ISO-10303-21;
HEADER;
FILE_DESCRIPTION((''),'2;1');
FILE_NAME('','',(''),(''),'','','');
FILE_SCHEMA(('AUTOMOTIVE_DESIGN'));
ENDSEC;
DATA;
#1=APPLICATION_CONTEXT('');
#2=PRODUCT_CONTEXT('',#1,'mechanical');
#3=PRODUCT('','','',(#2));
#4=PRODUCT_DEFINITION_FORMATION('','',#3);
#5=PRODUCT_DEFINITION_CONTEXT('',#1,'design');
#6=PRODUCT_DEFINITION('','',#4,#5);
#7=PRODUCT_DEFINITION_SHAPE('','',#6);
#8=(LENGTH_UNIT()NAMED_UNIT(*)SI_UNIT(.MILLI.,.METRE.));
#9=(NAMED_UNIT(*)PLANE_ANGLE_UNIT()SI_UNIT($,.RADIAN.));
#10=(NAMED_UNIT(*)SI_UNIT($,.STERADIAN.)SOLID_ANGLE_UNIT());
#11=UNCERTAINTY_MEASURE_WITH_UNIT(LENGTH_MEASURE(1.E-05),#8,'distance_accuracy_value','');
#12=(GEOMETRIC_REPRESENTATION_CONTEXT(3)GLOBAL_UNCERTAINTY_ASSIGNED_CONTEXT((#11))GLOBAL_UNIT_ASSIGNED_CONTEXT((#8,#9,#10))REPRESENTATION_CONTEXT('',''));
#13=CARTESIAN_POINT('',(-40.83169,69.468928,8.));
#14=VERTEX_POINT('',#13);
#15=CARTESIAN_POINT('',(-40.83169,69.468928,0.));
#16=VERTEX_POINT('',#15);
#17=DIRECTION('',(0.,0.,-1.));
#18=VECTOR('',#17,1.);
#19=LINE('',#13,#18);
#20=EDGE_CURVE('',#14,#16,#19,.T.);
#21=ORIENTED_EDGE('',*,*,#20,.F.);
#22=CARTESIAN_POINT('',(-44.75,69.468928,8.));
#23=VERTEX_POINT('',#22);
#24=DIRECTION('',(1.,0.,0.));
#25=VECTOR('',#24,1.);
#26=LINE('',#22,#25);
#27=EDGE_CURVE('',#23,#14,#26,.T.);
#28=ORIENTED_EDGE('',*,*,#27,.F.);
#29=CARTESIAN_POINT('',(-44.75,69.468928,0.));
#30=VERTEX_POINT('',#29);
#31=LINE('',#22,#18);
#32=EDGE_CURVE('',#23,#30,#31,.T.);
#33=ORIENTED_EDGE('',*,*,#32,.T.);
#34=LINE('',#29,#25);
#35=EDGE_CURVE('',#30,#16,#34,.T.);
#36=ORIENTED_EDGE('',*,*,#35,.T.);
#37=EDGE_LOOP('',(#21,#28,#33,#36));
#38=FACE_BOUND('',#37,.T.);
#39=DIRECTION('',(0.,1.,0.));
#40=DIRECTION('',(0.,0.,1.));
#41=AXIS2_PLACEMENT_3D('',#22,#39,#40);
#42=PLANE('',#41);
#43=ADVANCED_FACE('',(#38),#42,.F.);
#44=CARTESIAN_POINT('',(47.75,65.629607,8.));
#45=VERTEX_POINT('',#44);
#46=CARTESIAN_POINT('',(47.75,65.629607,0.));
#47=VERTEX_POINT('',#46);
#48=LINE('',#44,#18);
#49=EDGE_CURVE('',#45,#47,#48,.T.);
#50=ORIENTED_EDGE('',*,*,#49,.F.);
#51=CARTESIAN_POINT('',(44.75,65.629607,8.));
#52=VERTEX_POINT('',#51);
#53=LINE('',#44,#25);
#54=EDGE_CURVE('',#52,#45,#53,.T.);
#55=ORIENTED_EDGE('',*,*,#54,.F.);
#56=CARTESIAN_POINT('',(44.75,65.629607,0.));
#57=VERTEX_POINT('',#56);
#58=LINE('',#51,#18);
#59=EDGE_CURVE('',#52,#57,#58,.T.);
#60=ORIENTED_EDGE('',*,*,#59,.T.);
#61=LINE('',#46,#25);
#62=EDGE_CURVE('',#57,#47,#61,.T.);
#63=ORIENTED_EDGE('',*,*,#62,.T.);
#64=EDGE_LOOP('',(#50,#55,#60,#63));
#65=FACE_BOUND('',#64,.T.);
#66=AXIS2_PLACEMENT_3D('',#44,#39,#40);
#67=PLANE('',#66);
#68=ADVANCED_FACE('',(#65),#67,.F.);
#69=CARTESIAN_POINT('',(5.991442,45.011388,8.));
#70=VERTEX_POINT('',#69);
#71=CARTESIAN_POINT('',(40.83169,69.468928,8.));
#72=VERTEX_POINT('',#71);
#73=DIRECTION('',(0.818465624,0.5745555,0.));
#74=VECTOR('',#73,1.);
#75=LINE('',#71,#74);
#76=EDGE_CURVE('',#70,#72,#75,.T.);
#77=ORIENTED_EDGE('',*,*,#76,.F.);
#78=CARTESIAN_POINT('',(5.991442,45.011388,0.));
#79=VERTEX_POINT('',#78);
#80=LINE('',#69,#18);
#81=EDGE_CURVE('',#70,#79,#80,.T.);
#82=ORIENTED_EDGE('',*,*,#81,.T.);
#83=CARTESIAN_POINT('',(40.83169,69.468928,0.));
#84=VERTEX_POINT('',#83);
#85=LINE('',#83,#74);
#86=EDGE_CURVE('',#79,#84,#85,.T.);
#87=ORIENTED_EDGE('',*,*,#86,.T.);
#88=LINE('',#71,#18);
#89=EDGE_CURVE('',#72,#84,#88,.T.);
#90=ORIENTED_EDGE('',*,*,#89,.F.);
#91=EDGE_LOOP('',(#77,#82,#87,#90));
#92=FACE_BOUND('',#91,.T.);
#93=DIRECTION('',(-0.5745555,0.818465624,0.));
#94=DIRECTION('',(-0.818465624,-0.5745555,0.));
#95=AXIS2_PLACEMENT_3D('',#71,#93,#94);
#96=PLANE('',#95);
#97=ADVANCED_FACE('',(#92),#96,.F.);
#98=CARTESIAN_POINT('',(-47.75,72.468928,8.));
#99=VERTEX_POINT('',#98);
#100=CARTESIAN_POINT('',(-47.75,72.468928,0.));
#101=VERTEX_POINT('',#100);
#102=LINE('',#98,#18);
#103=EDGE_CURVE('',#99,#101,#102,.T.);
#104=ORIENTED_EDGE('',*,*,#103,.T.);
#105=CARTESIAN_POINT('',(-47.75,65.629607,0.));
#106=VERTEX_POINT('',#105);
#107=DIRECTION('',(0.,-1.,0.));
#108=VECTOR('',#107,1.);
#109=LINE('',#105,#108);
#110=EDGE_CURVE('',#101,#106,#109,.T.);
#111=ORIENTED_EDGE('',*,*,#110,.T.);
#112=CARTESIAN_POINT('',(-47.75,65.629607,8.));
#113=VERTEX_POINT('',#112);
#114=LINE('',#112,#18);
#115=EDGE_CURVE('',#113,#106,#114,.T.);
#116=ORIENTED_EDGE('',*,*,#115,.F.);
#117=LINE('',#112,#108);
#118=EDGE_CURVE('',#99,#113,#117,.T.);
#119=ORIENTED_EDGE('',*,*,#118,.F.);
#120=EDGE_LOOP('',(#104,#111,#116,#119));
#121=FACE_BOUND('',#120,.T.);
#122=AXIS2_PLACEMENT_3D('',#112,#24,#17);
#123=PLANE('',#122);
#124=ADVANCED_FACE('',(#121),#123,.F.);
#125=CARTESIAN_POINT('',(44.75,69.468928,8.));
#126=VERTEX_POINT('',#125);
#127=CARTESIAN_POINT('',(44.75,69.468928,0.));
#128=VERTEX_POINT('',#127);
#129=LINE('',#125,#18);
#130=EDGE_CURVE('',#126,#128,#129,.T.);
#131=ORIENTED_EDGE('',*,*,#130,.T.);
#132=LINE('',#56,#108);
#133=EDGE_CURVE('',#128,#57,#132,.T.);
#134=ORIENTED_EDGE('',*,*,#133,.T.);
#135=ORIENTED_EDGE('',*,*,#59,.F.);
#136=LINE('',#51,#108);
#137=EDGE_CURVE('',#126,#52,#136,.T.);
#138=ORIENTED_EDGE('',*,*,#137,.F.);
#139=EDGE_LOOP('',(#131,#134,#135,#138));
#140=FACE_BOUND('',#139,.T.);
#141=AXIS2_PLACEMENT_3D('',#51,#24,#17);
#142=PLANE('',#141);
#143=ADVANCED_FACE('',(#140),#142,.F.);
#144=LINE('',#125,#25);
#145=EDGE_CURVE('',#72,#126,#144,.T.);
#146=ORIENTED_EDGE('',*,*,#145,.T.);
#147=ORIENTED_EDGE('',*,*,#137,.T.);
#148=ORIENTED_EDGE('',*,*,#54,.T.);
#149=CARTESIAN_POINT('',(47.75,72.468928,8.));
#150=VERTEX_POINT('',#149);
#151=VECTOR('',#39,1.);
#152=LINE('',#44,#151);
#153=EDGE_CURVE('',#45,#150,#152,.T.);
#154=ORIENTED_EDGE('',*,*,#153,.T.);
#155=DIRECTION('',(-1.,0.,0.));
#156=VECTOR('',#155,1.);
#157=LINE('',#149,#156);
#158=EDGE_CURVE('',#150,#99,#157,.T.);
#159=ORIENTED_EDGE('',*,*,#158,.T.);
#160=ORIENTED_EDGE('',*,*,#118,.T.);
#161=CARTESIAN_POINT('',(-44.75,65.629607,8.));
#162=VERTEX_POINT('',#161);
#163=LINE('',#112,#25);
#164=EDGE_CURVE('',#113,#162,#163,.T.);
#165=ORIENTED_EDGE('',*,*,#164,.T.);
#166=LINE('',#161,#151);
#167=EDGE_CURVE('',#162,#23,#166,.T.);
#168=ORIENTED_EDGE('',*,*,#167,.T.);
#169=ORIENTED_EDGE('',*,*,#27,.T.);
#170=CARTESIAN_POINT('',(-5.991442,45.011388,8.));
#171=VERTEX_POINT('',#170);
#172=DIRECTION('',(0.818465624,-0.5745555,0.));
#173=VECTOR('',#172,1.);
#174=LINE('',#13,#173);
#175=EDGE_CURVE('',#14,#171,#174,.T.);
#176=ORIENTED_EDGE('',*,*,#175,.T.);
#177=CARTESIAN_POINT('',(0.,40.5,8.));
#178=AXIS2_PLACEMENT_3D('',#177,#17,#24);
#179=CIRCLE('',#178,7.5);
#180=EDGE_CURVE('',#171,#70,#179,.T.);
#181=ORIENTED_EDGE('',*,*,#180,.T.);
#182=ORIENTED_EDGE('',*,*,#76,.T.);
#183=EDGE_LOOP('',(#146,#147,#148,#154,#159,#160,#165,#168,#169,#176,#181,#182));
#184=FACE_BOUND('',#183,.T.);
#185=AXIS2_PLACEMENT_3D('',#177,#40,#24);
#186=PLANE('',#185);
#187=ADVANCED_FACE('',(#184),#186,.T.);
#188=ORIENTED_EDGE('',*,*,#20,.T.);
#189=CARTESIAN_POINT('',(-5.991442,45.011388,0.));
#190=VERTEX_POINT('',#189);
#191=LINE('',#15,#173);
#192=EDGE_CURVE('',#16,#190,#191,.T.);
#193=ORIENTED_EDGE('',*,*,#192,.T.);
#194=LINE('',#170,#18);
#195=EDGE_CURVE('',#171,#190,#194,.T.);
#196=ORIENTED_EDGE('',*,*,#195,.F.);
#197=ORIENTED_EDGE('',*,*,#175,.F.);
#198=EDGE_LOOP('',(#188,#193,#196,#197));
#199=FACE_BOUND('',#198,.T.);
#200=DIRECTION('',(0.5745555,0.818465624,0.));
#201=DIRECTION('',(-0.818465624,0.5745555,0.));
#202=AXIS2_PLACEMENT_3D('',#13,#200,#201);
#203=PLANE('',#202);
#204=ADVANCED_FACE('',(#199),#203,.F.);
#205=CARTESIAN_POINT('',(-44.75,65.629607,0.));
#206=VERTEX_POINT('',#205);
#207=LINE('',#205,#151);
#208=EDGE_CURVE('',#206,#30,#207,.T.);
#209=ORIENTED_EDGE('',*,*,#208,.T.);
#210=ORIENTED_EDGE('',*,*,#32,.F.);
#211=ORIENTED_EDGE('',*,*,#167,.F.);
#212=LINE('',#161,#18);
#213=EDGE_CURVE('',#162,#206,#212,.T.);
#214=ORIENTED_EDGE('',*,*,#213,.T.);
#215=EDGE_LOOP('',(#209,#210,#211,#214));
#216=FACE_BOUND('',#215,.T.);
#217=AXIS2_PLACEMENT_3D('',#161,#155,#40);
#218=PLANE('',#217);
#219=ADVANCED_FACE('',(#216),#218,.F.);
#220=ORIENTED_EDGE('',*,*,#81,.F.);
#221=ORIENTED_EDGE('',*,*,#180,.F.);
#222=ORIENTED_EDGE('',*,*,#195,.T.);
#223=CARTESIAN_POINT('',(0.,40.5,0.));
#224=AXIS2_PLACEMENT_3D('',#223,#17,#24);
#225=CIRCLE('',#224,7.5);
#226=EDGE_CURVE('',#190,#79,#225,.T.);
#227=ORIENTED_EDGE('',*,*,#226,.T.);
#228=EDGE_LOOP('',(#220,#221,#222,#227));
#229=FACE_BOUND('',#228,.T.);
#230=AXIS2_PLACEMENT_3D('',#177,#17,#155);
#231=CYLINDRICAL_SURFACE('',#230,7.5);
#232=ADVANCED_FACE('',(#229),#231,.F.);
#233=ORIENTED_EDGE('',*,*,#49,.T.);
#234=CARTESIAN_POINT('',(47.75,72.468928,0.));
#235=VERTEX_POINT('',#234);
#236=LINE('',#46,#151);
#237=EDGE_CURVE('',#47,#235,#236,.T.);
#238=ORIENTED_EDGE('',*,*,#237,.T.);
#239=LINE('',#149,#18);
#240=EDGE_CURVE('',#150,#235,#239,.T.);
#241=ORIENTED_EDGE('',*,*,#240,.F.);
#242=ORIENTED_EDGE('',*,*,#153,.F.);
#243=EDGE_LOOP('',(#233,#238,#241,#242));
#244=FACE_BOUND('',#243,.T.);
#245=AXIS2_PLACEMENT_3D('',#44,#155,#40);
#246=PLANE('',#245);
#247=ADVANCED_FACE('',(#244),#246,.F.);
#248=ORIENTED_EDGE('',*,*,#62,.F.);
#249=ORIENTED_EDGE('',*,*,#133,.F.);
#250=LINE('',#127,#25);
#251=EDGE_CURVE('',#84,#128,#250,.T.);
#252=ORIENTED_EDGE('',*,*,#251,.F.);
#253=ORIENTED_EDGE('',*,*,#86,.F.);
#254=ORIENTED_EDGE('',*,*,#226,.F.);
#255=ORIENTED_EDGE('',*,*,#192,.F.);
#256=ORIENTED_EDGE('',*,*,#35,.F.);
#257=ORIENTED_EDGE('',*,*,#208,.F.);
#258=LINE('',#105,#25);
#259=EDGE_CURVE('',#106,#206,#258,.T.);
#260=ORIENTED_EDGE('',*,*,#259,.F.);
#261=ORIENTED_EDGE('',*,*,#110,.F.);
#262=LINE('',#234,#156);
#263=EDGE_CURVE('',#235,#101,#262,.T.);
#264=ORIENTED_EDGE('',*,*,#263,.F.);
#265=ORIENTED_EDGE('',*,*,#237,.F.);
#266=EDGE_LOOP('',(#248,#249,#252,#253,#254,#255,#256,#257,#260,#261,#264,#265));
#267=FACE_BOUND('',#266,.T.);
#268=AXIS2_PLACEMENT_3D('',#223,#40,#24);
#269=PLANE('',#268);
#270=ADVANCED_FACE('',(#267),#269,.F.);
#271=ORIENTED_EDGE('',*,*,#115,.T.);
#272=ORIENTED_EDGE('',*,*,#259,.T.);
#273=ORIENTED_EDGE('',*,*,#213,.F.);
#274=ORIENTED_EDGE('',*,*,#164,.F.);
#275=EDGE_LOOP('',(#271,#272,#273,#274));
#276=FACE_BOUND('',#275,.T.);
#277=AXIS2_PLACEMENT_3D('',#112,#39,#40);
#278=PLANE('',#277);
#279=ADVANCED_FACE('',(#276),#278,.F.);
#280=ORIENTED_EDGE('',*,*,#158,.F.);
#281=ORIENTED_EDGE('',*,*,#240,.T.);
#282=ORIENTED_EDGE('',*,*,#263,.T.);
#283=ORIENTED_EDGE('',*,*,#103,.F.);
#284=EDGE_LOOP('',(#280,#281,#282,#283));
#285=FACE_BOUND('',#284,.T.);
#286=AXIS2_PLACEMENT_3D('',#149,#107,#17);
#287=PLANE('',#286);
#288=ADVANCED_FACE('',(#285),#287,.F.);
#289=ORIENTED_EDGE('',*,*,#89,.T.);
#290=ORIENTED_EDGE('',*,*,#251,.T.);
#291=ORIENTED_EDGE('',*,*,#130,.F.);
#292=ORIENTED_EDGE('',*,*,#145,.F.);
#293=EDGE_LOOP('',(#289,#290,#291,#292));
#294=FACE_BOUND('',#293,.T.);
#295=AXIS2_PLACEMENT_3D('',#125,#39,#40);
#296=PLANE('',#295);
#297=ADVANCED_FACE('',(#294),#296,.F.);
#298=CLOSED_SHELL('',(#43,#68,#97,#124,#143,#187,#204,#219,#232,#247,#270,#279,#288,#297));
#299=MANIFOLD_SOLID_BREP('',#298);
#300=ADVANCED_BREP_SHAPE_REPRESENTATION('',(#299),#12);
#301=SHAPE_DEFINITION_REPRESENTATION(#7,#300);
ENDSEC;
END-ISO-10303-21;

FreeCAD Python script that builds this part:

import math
import FreeCAD as App
import Part
import Sketcher
Q = App.Units.Quantity

doc = App.newDocument("Part")
params = doc.addObject("Spreadsheet::Sheet", "Params")
for row, (alias, value) in enumerate([
    ("sketch1_radius", "7.5 mm"),
    ("sketch1_width", "3 mm"),
    ("sketch1_width2", "95.5 mm"),
    ("pad1_length", "8 mm"),
], start=1):
    params.set(f"A{row}", alias)
    params.set(f"B{row}", "=" + value)
    params.setAlias(f"B{row}", alias)

body = doc.addObject("PartDesign::Body", "Body")

sketch1 = body.newObject("Sketcher::SketchObject", "Sketch")
sketch1.AttachmentSupport = (doc.getObject("XY_Plane"), [""])
sketch1.MapMode = "FlatFace"
sketch1.addGeometry([
    Part.LineSegment(App.Vector(-47.8, 65.6, 0), App.Vector(-44.8, 65.6, 0)),
    Part.LineSegment(App.Vector(-44.8, 65.6, 0), App.Vector(-44.8, 69.5, 0)),
    Part.LineSegment(App.Vector(-44.8, 69.5, 0), App.Vector(-40.8, 69.5, 0)),
    Part.LineSegment(App.Vector(-40.8, 69.5, 0), App.Vector(-6, 45, 0)),
    Part.ArcOfCircle(Part.Circle(App.Vector(0, 40.5, 0), App.Vector(0, 0, 1), 7.5), math.radians(37), math.radians(143)),
    Part.LineSegment(App.Vector(6, 45, 0), App.Vector(40.8, 69.5, 0)),
    Part.LineSegment(App.Vector(40.8, 69.5, 0), App.Vector(44.8, 69.5, 0)),
    Part.LineSegment(App.Vector(44.8, 69.5, 0), App.Vector(44.8, 65.6, 0)),
    Part.LineSegment(App.Vector(44.8, 65.6, 0), App.Vector(47.8, 65.6, 0)),
    Part.LineSegment(App.Vector(47.8, 65.6, 0), App.Vector(47.8, 72.5, 0)),
    Part.LineSegment(App.Vector(47.8, 72.5, 0), App.Vector(-47.8, 72.5, 0)),
    Part.LineSegment(App.Vector(-47.8, 72.5, 0), App.Vector(-47.8, 65.6, 0)),
], False)
sketch1.addConstraint([
    Sketcher.Constraint("Coincident", 0, 2, 1, 1),
    Sketcher.Constraint("Coincident", 1, 2, 2, 1),
    Sketcher.Constraint("Coincident", 2, 2, 3, 1),
    Sketcher.Constraint("Coincident", 3, 2, 4, 2),
    Sketcher.Constraint("Coincident", 4, 1, 5, 1),
    Sketcher.Constraint("Coincident", 5, 2, 6, 1),
    Sketcher.Constraint("Coincident", 6, 2, 7, 1),
    Sketcher.Constraint("Coincident", 7, 2, 8, 1),
    Sketcher.Constraint("Coincident", 8, 2, 9, 1),
    Sketcher.Constraint("Coincident", 9, 2, 10, 1),
    Sketcher.Constraint("Coincident", 10, 2, 11, 1),
    Sketcher.Constraint("Coincident", 11, 2, 0, 1),
    Sketcher.Constraint("Horizontal", 0),
    Sketcher.Constraint("Vertical", 1),
    Sketcher.Constraint("Horizontal", 2),
    Sketcher.Constraint("Horizontal", 6),
    Sketcher.Constraint("Vertical", 7),
    Sketcher.Constraint("Horizontal", 8),
    Sketcher.Constraint("Vertical", 9),
    Sketcher.Constraint("Horizontal", 10),
    Sketcher.Constraint("Vertical", 11),
    Sketcher.Constraint("Symmetric", 3, 2, 4, 1, -2),
    Sketcher.Constraint("Symmetric", 2, 2, 5, 2, -2),
    Sketcher.Constraint("Symmetric", 0, 2, 7, 2, -2),
    Sketcher.Constraint("Equal", 0, 8),
    Sketcher.Constraint("Radius", 4, Q("7.5 mm")),
    Sketcher.Constraint("DistanceX", 0, 1, 0, 2, Q("3 mm")),
    Sketcher.Constraint("DistanceX", 10, 2, 10, 1, Q("95.5 mm")),
    Sketcher.Constraint("DistanceY", 6, 2, 9, 2, Q("3 mm")),
    Sketcher.Constraint("DistanceY", -1, 1, 4, 3, Q("40.5 mm")),
    Sketcher.Constraint("DistanceX", 2, 1, 2, 2, Q("3.91831 mm")),
    Sketcher.Constraint("DistanceY", 1, 1, 1, 2, Q("3.839321 mm")),
    Sketcher.Constraint("Distance", 3, Q("42.56776 mm")),
    Sketcher.Constraint("DistanceY", -1, 1, 1, 2, Q("69.468928 mm")),
])
sketch1.setExpression("Constraints[25]", "Params.sketch1_radius")
sketch1.setExpression("Constraints[26]", "Params.sketch1_width")
sketch1.setExpression("Constraints[27]", "Params.sketch1_width2")
pad1 = body.newObject("PartDesign::Pad", "Pad")
pad1.Profile = sketch1
pad1.setExpression("Length", "Params.pad1_length")

doc.recompute()
